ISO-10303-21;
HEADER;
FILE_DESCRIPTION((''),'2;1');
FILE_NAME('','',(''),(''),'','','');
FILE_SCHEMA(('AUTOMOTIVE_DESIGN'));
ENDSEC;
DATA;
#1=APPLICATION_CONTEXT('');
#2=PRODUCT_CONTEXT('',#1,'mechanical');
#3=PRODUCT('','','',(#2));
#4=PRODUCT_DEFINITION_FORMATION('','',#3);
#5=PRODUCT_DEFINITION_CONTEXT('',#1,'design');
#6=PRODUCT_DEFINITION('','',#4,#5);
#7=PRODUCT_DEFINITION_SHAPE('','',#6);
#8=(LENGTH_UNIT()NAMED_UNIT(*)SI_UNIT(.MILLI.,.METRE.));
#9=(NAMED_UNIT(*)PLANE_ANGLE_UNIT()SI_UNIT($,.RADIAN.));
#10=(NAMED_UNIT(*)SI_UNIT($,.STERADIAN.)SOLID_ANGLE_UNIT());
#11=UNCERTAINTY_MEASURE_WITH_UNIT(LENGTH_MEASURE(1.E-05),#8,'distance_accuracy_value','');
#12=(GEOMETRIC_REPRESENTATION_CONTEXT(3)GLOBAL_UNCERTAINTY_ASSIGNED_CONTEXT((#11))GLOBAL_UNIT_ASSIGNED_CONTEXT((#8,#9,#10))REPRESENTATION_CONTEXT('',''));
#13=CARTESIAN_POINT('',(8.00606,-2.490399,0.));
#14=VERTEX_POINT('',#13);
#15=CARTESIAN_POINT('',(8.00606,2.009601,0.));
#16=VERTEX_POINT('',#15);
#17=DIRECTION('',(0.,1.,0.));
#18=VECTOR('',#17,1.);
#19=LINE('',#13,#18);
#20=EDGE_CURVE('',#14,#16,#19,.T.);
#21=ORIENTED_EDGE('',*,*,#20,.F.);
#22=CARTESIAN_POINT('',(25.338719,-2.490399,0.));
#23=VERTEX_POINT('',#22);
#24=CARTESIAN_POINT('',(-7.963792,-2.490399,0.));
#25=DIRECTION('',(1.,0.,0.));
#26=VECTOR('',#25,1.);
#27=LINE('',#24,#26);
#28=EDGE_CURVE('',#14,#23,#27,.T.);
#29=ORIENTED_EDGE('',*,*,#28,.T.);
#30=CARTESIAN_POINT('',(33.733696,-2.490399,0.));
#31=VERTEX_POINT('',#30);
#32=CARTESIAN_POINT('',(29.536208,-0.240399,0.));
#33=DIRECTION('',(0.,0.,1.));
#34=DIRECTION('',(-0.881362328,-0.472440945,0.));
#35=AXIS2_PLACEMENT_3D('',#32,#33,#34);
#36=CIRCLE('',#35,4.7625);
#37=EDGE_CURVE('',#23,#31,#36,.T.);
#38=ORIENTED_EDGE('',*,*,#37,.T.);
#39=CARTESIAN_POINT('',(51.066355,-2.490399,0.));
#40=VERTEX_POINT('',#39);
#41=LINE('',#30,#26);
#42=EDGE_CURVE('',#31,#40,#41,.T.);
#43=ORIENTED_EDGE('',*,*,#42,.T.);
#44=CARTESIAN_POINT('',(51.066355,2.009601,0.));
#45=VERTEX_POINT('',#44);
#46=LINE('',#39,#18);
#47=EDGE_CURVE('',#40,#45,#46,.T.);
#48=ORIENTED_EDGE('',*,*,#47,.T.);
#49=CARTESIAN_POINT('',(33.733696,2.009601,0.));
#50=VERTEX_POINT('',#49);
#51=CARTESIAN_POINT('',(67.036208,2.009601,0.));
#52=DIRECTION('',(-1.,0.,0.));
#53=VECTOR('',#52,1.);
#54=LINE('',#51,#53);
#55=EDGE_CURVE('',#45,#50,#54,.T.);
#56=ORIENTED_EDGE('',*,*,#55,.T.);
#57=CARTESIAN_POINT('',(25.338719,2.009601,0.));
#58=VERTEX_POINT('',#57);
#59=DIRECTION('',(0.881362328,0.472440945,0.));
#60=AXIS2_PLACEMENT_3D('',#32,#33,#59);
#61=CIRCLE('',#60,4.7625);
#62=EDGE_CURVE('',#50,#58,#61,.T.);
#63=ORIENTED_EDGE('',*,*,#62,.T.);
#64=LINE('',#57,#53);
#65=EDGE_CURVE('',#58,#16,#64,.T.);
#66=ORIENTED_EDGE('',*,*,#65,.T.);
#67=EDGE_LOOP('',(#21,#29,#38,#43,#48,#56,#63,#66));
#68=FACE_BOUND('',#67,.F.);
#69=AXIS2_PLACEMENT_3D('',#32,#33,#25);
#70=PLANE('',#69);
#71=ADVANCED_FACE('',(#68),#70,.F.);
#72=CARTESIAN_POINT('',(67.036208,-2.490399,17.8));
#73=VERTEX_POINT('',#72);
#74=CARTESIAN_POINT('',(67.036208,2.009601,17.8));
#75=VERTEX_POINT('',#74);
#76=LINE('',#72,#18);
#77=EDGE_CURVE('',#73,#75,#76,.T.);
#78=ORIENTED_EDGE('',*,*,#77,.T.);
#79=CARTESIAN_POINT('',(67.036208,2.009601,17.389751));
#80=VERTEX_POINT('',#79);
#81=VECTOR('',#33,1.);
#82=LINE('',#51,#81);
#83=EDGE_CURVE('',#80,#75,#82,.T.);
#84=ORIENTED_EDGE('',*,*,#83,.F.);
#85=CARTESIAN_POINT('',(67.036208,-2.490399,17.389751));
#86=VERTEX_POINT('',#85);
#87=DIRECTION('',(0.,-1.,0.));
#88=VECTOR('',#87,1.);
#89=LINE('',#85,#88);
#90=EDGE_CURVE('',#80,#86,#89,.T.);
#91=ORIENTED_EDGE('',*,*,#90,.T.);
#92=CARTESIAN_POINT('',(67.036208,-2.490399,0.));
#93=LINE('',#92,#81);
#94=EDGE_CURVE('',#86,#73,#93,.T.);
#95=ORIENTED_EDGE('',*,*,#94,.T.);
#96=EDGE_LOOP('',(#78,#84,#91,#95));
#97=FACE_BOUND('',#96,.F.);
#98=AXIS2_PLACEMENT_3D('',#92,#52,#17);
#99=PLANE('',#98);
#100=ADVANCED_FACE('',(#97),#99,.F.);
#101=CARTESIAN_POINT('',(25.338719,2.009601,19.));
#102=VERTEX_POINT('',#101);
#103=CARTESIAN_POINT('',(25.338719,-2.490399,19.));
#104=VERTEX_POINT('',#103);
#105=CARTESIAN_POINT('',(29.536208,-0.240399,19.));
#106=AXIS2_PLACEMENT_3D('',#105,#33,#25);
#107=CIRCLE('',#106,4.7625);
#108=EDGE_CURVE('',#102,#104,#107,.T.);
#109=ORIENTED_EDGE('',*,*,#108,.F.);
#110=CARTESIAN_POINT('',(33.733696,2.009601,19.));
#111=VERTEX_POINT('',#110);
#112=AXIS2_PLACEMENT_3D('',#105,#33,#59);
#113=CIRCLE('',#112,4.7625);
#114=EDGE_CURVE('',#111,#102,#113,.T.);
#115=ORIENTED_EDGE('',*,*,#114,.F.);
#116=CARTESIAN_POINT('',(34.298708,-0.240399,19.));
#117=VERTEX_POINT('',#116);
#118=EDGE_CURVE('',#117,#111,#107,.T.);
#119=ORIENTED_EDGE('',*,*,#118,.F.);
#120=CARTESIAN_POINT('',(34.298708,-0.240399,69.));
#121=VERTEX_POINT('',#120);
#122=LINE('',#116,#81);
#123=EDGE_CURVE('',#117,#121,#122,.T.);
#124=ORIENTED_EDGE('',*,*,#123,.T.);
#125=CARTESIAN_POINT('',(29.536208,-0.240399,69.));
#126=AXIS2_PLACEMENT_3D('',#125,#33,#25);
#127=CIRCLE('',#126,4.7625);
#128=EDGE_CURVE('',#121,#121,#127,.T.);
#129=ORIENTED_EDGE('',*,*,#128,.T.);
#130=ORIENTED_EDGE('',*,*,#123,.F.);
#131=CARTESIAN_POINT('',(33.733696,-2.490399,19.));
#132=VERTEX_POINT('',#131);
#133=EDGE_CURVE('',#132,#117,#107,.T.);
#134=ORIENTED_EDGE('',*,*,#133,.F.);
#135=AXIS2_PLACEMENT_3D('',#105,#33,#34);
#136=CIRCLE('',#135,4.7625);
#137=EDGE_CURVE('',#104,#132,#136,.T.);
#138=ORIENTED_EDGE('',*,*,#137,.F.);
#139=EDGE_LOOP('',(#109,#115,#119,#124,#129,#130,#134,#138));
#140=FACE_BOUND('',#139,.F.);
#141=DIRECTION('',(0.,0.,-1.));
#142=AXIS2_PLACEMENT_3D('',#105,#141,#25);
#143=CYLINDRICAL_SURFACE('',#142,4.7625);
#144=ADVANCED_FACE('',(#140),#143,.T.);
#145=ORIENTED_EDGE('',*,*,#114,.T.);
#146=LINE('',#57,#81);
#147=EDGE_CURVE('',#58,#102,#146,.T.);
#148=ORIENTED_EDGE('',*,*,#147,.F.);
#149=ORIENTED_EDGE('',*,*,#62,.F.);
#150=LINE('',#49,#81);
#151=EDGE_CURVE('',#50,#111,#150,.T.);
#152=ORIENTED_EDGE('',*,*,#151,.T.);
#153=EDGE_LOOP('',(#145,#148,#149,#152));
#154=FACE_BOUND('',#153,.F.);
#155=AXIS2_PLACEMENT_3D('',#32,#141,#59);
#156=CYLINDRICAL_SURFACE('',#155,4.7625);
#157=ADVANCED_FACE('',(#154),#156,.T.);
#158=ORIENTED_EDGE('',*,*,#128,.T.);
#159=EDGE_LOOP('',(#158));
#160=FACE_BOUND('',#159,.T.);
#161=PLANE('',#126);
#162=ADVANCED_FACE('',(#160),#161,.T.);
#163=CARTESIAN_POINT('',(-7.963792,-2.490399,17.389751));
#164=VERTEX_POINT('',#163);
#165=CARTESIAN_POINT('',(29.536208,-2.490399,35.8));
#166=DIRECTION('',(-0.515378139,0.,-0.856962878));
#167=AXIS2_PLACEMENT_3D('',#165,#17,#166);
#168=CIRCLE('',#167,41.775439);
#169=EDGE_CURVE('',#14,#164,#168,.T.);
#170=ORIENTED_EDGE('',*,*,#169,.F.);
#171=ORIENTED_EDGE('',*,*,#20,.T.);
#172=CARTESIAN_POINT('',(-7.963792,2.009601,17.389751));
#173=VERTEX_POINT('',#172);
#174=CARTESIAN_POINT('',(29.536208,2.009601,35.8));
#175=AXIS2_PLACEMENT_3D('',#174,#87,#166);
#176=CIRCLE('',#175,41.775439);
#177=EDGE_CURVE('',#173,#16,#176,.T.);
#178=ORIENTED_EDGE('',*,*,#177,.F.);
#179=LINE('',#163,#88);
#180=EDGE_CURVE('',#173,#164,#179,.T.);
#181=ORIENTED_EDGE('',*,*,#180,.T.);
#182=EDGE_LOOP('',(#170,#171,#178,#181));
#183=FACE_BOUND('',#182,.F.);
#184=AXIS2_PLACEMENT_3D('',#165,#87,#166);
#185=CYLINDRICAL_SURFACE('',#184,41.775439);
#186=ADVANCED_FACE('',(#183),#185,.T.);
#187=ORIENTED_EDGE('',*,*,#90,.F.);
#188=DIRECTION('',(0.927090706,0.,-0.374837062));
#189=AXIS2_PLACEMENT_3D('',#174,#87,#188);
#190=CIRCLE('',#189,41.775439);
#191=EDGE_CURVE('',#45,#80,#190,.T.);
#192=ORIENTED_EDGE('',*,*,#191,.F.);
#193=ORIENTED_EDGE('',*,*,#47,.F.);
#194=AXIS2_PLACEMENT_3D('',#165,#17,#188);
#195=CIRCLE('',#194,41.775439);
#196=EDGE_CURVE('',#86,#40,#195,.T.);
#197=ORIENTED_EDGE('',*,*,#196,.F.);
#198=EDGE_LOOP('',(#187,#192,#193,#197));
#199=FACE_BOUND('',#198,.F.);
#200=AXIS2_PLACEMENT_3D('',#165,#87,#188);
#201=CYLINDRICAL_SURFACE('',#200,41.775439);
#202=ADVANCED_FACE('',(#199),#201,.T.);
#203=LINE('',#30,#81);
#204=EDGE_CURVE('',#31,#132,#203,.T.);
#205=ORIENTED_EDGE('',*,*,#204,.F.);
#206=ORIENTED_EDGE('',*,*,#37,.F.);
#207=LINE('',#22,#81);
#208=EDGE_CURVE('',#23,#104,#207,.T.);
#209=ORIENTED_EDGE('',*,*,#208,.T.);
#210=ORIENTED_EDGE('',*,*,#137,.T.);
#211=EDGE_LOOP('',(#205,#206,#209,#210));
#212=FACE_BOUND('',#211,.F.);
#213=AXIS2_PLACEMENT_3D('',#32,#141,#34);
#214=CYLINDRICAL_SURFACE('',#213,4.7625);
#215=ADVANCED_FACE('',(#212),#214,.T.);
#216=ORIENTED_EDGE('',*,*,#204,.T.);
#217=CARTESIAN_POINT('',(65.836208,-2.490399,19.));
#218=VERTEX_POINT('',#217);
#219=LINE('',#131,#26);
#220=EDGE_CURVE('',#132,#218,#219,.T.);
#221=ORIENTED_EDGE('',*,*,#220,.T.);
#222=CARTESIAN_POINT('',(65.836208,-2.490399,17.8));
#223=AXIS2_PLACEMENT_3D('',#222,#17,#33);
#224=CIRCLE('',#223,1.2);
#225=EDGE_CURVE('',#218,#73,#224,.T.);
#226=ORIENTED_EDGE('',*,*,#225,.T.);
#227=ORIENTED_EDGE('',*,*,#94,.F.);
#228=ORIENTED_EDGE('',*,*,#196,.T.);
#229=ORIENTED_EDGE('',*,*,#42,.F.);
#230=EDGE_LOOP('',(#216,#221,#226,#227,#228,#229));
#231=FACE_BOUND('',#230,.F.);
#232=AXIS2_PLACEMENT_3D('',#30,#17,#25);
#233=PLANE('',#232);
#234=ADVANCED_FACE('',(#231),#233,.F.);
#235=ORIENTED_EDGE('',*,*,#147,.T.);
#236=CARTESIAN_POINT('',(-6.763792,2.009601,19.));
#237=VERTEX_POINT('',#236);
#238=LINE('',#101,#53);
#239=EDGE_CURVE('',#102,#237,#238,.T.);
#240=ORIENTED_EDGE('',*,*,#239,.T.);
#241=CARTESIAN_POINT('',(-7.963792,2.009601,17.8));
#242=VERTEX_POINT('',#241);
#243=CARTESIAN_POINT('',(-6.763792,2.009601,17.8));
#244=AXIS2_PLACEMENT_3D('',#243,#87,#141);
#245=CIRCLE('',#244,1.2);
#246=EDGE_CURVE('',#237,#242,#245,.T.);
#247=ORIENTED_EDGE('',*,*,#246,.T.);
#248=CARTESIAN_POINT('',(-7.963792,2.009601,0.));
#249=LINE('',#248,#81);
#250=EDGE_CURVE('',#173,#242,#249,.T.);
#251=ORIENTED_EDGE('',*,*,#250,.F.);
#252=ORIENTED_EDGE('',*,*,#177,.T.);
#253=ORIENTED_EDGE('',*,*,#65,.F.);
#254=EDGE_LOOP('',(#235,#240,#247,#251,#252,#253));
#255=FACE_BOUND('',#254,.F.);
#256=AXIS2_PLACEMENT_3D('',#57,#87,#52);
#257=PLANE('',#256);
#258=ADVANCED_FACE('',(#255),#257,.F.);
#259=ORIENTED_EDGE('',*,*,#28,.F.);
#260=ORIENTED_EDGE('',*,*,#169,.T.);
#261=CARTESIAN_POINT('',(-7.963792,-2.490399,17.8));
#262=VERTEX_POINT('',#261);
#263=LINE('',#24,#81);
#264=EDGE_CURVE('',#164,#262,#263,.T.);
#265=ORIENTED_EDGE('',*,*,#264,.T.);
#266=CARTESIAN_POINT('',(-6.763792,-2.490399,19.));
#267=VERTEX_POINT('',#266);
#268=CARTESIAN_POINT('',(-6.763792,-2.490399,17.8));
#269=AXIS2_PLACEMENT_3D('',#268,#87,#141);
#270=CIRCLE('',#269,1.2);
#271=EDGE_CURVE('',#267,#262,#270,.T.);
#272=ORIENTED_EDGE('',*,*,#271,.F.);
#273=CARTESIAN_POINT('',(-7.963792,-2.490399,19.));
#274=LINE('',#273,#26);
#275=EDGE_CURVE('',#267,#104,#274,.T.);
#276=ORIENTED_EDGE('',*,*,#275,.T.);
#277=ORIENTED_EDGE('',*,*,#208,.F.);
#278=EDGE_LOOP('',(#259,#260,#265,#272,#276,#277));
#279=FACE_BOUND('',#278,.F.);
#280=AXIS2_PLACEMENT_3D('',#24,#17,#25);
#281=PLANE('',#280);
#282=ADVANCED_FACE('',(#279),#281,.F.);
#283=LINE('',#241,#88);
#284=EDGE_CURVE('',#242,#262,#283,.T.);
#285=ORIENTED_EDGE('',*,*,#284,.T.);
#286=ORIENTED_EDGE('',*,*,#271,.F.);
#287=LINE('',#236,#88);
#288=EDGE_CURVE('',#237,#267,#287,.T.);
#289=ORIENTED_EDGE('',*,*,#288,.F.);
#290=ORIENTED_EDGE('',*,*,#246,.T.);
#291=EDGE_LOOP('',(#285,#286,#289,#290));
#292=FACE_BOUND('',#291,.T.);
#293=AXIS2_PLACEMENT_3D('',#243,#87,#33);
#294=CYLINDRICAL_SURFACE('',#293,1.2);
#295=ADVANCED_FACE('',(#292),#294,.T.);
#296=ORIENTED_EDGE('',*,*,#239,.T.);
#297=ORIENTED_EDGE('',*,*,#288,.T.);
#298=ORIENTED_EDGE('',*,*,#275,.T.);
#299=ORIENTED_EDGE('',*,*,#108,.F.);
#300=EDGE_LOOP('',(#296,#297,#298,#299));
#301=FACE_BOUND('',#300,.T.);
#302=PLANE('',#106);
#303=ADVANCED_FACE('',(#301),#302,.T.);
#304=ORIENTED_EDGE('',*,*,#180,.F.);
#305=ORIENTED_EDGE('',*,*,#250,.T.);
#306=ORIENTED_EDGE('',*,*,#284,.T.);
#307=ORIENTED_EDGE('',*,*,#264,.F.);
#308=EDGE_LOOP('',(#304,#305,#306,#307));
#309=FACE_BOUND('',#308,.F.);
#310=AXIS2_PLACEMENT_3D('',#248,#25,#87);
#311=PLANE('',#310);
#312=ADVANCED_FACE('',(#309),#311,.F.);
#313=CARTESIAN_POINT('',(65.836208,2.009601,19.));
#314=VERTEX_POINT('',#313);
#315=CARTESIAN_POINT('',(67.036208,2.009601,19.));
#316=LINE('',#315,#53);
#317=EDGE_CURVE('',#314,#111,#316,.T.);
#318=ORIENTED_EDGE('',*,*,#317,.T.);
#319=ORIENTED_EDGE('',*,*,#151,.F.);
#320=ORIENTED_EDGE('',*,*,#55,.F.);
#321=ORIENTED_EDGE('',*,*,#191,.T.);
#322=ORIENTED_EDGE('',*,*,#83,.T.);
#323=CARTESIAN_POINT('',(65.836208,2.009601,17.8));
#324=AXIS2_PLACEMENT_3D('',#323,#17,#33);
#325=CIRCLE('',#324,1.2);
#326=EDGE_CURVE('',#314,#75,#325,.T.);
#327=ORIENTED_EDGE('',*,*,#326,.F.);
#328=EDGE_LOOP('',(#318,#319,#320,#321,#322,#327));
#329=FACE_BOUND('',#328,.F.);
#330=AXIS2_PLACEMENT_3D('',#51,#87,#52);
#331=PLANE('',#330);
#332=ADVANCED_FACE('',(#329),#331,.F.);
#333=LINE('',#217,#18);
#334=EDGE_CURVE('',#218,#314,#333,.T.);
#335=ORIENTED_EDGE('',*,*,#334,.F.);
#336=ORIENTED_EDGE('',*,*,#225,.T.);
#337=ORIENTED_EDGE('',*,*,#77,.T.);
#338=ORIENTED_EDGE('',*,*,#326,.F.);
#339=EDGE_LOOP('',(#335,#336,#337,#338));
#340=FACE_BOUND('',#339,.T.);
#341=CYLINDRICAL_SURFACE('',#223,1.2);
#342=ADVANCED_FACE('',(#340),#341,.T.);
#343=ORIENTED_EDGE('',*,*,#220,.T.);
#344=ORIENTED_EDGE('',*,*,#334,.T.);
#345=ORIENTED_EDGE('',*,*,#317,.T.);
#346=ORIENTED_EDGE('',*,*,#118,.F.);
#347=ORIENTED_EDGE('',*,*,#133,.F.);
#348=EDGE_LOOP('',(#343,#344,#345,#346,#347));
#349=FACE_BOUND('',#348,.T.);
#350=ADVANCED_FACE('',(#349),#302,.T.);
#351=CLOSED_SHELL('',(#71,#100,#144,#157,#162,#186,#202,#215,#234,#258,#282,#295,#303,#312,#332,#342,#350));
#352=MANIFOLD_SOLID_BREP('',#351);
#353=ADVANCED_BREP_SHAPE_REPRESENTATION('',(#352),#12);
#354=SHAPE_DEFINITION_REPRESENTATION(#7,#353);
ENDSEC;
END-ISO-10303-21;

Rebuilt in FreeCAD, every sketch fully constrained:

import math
import FreeCAD as App
import Part
import Sketcher


def edges_at(feature, points):
    """Names of the edges that pass closest to the given points."""
    edges = feature.Shape.Edges
    near = lambda p: min(range(len(edges)), key=lambda i: edges[i].distToShape(Part.Vertex(*p))[0])
    return sorted({f"Edge{near(p) + 1}" for p in points})

doc = App.newDocument("Part")
params = doc.addObject("Spreadsheet::Sheet", "Params")
for row, (alias, value) in enumerate([
    ("sketch1_height", "4.5 mm"),
    ("pad1_length", "19 mm"),
    ("pad2_length", "50 mm"),
    ("fillet_radius", "1.2 mm"),
], start=1):
    params.set(f"A{row}", alias)
    params.set(f"B{row}", "=" + value)
    params.setAlias(f"B{row}", alias)

body = doc.addObject("PartDesign::Body", "Body")

# Sketch on XY plane
sketch1 = doc.addObject("Sketcher::SketchObject", "Sketch")
body.addObject(sketch1)
sketch1.AttachmentSupport = (doc.XY_Plane, [""])
sketch1.MapMode = "FlatFace"
sketch1.addGeometry([
    Part.LineSegment(App.Vector(25.3, 2, 0), App.Vector(-8, 2, 0)),  # 0
    Part.LineSegment(App.Vector(-8, 2, 0), App.Vector(-8, -2.5, 0)),  # 1
    Part.LineSegment(App.Vector(-8, -2.5, 0), App.Vector(25.3, -2.5, 0)),  # 2
    Part.ArcOfCircle(Part.Circle(App.Vector(29.5, -0.2, 0), App.Vector(0, 0, 1), 4.8), math.radians(-152), math.radians(-28)),  # 3
    Part.LineSegment(App.Vector(33.7, -2.5, 0), App.Vector(67, -2.5, 0)),  # 4
    Part.LineSegment(App.Vector(67, -2.5, 0), App.Vector(67, 2, 0)),  # 5
    Part.LineSegment(App.Vector(67, 2, 0), App.Vector(33.7, 2, 0)),  # 6
    Part.ArcOfCircle(Part.Circle(App.Vector(29.5, -0.2, 0), App.Vector(0, 0, 1), 4.8), math.radians(28), math.radians(152)),  # 7
], False)
sketch1.addConstraint([
    Sketcher.Constraint("Coincident", 0, 2, 1, 1),
    Sketcher.Constraint("Coincident", 1, 2, 2, 1),
    Sketcher.Constraint("Coincident", 2, 2, 3, 1),
    Sketcher.Constraint("Coincident", 3, 2, 4, 1),
    Sketcher.Constraint("Coincident", 4, 2, 5, 1),
    Sketcher.Constraint("Coincident", 5, 2, 6, 1),
    Sketcher.Constraint("Coincident", 6, 2, 7, 1),
    Sketcher.Constraint("Coincident", 7, 2, 0, 1),
    Sketcher.Constraint("Horizontal", 0),
    Sketcher.Constraint("Vertical", 1),
    Sketcher.Constraint("Horizontal", 2),
    Sketcher.Constraint("Horizontal", 4),
    Sketcher.Constraint("Vertical", 5),
    Sketcher.Constraint("Horizontal", 6),
    Sketcher.Constraint("Coincident", 7, 3, 3, 3),
    Sketcher.Constraint("Equal", 3, 7),
    Sketcher.Constraint("Horizontal", 2, 2, 3, 2),
    Sketcher.Constraint("Horizontal", 0, 2, 5, 2),
    Sketcher.Constraint("Vertical", 3, 2, 6, 2),
    Sketcher.Constraint("Equal", 2, 4),
    Sketcher.Constraint("DistanceY", 1, 2, 1, 1, 4.5),
    Sketcher.Constraint("DistanceX", 1, 2, 4, 2, 75.0),
    Sketcher.Constraint("Radius", 3, 4.7625),
    Sketcher.Constraint("DistanceY", 3, 3, -1, 1, 0.240399),
    Sketcher.Constraint("DistanceX", -1, 1, 2, 2, 25.338719),
])
sketch1.setExpression("Constraints[20]", "Params.sketch1_height")
pad1 = doc.addObject("PartDesign::Pad", "Pad")
body.addObject(pad1)
pad1.Profile = sketch1
pad1.setExpression("Length", "Params.pad1_length")

# Sketch on XY plane
sketch2 = doc.addObject("Sketcher::SketchObject", "Sketch001")
body.addObject(sketch2)
sketch2.AttachmentSupport = (doc.XY_Plane, [""])
sketch2.MapMode = "FlatFace"
sketch2.AttachmentOffset = App.Placement(App.Vector(0, 0, 19), App.Rotation())
sketch2.addGeometry(Part.Circle(App.Vector(29.5, -0.2, 0), App.Vector(0, 0, 1), 4.8), False)
sketch2.addConstraint([
    Sketcher.Constraint("Diameter", 0, 9.525),
    Sketcher.Constraint("DistanceY", 0, 3, -1, 1, 0.240399),
    Sketcher.Constraint("DistanceX", -1, 1, 0, 3, 29.536208),
])
pad2 = doc.addObject("PartDesign::Pad", "Pad001")
body.addObject(pad2)
pad2.Profile = sketch2
pad2.setExpression("Length", "Params.pad2_length")

# Sketch on XZ plane
sketch3 = doc.addObject("Sketcher::SketchObject", "Sketch002")
body.addObject(sketch3)
sketch3.AttachmentSupport = (doc.XZ_Plane, [""])
sketch3.MapMode = "FlatFace"
sketch3.AttachmentOffset = App.Placement(App.Vector(0, 0, 2.490399), App.Rotation())
sketch3.addGeometry([
    Part.ArcOfCircle(Part.Circle(App.Vector(30, 36, 0), App.Vector(0, 0, 1), 42), math.radians(-59), math.radians(-22)),  # 0
    Part.LineSegment(App.Vector(51, 0, 0), App.Vector(69, 0, 0)),  # 1
    Part.LineSegment(App.Vector(69, 0, 0), App.Vector(68, 20, 0)),  # 2
    Part.ArcOfCircle(Part.Circle(App.Vector(30, 36, 0), App.Vector(0, 0, 1), 42), math.radians(-158), math.radians(-121)),  # 3
    Part.LineSegment(App.Vector(-9, 20, 0), App.Vector(-9, 0, 0)),  # 4
    Part.LineSegment(App.Vector(-9, 0, 0), App.Vector(8, 0, 0)),  # 5
], False)
sketch3.addConstraint([
    Sketcher.Constraint("Coincident", 0, 1, 1, 1),
    Sketcher.Constraint("Coincident", 1, 2, 2, 1),
    Sketcher.Constraint("Coincident", 2, 2, 0, 2),
    Sketcher.Constraint("Coincident", 3, 1, 4, 1),
    Sketcher.Constraint("Coincident", 4, 2, 5, 1),
    Sketcher.Constraint("Coincident", 5, 2, 3, 2),
    Sketcher.Constraint("Horizontal", 1),
    Sketcher.Constraint("Vertical", 4),
    Sketcher.Constraint("Horizontal", 5),
    Sketcher.Constraint("Coincident", 3, 3, 0, 3),
    Sketcher.Constraint("Equal", 0, 3),
    Sketcher.Constraint("PointOnObject", 0, 1, -1),
    Sketcher.Constraint("PointOnObject", 4, 2, -1),
    Sketcher.Constraint("DistanceY", -1, 1, 0, 3, 35.8),
    Sketcher.Constraint("Radius", 0, 41.775439),
    Sketcher.Constraint("DistanceY", 4, 2, 4, 1, 19.988119),
    Sketcher.Constraint("Distance", 2, 20.146839),
    Sketcher.Constraint("DistanceX", 1, 1, 1, 2, 17.683758),
    Sketcher.Constraint("DistanceX", -1, 1, 2, 2, 68.265828),
])
pocket1 = doc.addObject("PartDesign::Pocket", "Pocket")
body.addObject(pocket1)
pocket1.Profile = sketch3
pocket1.Type = "ThroughAll"
doc.recompute()

fillet = doc.addObject("PartDesign::Fillet", "Fillet")
body.addObject(fillet)
fillet.Base = (pocket1, edges_at(pocket1, [(67.036, -0.24, 19), (-7.964, -0.24, 19)]))
fillet.setExpression("Radius", "Params.fillet_radius")

doc.recompute()
